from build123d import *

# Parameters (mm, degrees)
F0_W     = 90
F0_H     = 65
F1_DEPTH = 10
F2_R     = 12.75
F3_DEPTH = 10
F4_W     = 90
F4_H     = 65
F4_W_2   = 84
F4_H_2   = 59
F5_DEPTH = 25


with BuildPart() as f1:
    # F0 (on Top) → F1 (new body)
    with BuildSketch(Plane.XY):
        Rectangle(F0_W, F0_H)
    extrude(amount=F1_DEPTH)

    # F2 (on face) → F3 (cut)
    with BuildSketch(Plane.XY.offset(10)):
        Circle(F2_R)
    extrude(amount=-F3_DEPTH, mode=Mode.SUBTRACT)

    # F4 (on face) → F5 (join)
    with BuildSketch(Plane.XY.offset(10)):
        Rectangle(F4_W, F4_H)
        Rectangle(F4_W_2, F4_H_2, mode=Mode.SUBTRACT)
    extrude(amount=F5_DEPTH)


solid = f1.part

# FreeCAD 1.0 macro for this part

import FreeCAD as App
import Part
import Sketcher
from FreeCAD import Vector
Q = App.Units.Quantity

doc = App.newDocument("Part")
body = doc.addObject("PartDesign::Body", "Body")

sketch1 = doc.addObject("Sketcher::SketchObject", "Sketch")
body.addObject(sketch1)
sketch1.AttachmentSupport = (doc.XY_Plane, [""])
sketch1.MapMode = "FlatFace"
sketch1.addGeometry(Part.LineSegment(Vector(-45, 32, 0), Vector(-45, -32, 0)), False)
sketch1.addGeometry(Part.LineSegment(Vector(-45, -32, 0), Vector(45, -32, 0)), False)
sketch1.addGeometry(Part.LineSegment(Vector(45, -32, 0), Vector(45, 32, 0)), False)
sketch1.addGeometry(Part.LineSegment(Vector(45, 32, 0), Vector(-45, 32, 0)), False)
sketch1.addConstraint(Sketcher.Constraint("Coincident", 0, 2, 1, 1))
sketch1.addConstraint(Sketcher.Constraint("Coincident", 1, 2, 2, 1))
sketch1.addConstraint(Sketcher.Constraint("Coincident", 2, 2, 3, 1))
sketch1.addConstraint(Sketcher.Constraint("Coincident", 3, 2, 0, 1))
sketch1.addConstraint(Sketcher.Constraint("Vertical", 0))
sketch1.addConstraint(Sketcher.Constraint("Horizontal", 1))
sketch1.addConstraint(Sketcher.Constraint("Vertical", 2))
sketch1.addConstraint(Sketcher.Constraint("Horizontal", 3))
sketch1.addConstraint(Sketcher.Constraint("Symmetric", 0, 2, 2, 2, -1, 1))
sketch1.addConstraint(Sketcher.Constraint("DistanceX", 1, 1, 1, 2, Q("90 mm")))
sketch1.addConstraint(Sketcher.Constraint("DistanceY", 0, 2, 0, 1, Q("65 mm")))
pad1 = doc.addObject("PartDesign::Pad", "Pad")
body.addObject(pad1)
pad1.Profile = sketch1
pad1.Length = 10

sketch2 = doc.addObject("Sketcher::SketchObject", "Sketch001")
body.addObject(sketch2)
sketch2.AttachmentSupport = (doc.XY_Plane, [""])
sketch2.MapMode = "FlatFace"
sketch2.AttachmentOffset = App.Placement(Vector(0, 0, 10), App.Rotation())
sketch2.addGeometry(Part.Circle(Vector(0, 0, 0), Vector(0, 0, 1), 13), False)
sketch2.addConstraint(Sketcher.Constraint("Coincident", 0, 3, -1, 1))
sketch2.addConstraint(Sketcher.Constraint("Diameter", 0, Q("25.5 mm")))
pocket1 = doc.addObject("PartDesign::Pocket", "Pocket")
body.addObject(pocket1)
pocket1.Profile = sketch2
pocket1.Length = 10

sketch3 = doc.addObject("Sketcher::SketchObject", "Sketch002")
body.addObject(sketch3)
sketch3.AttachmentSupport = (doc.XY_Plane, [""])
sketch3.MapMode = "FlatFace"
sketch3.AttachmentOffset = App.Placement(Vector(0, 0, 10), App.Rotation())
sketch3.addGeometry(Part.LineSegment(Vector(-45, 32, 0), Vector(-45, -32, 0)), False)
sketch3.addGeometry(Part.LineSegment(Vector(-45, -32, 0), Vector(45, -32, 0)), False)
sketch3.addGeometry(Part.LineSegment(Vector(45, -32, 0), Vector(45, 32, 0)), False)
sketch3.addGeometry(Part.LineSegment(Vector(45, 32, 0), Vector(-45, 32, 0)), False)
sketch3.addGeometry(Part.LineSegment(Vector(42, -30, 0), Vector(-42, -30, 0)), False)
sketch3.addGeometry(Part.LineSegment(Vector(-42, -30, 0), Vector(-42, 30, 0)), False)
sketch3.addGeometry(Part.LineSegment(Vector(-42, 30, 0), Vector(42, 30, 0)), False)
sketch3.addGeometry(Part.LineSegment(Vector(42, 30, 0), Vector(42, -30, 0)), False)
sketch3.addConstraint(Sketcher.Constraint("Coincident", 0, 2, 1, 1))
sketch3.addConstraint(Sketcher.Constraint("Coincident", 1, 2, 2, 1))
sketch3.addConstraint(Sketcher.Constraint("Coincident", 2, 2, 3, 1))
sketch3.addConstraint(Sketcher.Constraint("Coincident", 3, 2, 0, 1))
sketch3.addConstraint(Sketcher.Constraint("Coincident", 4, 2, 5, 1))
sketch3.addConstraint(Sketcher.Constraint("Coincident", 5, 2, 6, 1))
sketch3.addConstraint(Sketcher.Constraint("Coincident", 6, 2, 7, 1))
sketch3.addConstraint(Sketcher.Constraint("Coincident", 7, 2, 4, 1))
sketch3.addConstraint(Sketcher.Constraint("Vertical", 0))
sketch3.addConstraint(Sketcher.Constraint("Horizontal", 1))
sketch3.addConstraint(Sketcher.Constraint("Vertical", 2))
sketch3.addConstraint(Sketcher.Constraint("Horizontal", 3))
sketch3.addConstraint(Sketcher.Constraint("Horizontal", 4))
sketch3.addConstraint(Sketcher.Constraint("Vertical", 5))
sketch3.addConstraint(Sketcher.Constraint("Horizontal", 6))
sketch3.addConstraint(Sketcher.Constraint("Vertical", 7))
sketch3.addConstraint(Sketcher.Constraint("Symmetric", 0, 2, 2, 2, -1, 1))
sketch3.addConstraint(Sketcher.Constraint("Symmetric", 4, 2, 6, 2, -1, 1))
sketch3.addConstraint(Sketcher.Constraint("DistanceX", 1, 1, 1, 2, Q("90 mm")))
sketch3.addConstraint(Sketcher.Constraint("DistanceX", 4, 2, 4, 1, Q("84 mm")))
sketch3.addConstraint(Sketcher.Constraint("DistanceY", 0, 2, 0, 1, Q("65 mm")))
sketch3.addConstraint(Sketcher.Constraint("DistanceY", 5, 1, 5, 2, Q("59 mm")))
pad2 = doc.addObject("PartDesign::Pad", "Pad001")
body.addObject(pad2)
pad2.Profile = sketch3
pad2.Length = 25

doc.recompute()
